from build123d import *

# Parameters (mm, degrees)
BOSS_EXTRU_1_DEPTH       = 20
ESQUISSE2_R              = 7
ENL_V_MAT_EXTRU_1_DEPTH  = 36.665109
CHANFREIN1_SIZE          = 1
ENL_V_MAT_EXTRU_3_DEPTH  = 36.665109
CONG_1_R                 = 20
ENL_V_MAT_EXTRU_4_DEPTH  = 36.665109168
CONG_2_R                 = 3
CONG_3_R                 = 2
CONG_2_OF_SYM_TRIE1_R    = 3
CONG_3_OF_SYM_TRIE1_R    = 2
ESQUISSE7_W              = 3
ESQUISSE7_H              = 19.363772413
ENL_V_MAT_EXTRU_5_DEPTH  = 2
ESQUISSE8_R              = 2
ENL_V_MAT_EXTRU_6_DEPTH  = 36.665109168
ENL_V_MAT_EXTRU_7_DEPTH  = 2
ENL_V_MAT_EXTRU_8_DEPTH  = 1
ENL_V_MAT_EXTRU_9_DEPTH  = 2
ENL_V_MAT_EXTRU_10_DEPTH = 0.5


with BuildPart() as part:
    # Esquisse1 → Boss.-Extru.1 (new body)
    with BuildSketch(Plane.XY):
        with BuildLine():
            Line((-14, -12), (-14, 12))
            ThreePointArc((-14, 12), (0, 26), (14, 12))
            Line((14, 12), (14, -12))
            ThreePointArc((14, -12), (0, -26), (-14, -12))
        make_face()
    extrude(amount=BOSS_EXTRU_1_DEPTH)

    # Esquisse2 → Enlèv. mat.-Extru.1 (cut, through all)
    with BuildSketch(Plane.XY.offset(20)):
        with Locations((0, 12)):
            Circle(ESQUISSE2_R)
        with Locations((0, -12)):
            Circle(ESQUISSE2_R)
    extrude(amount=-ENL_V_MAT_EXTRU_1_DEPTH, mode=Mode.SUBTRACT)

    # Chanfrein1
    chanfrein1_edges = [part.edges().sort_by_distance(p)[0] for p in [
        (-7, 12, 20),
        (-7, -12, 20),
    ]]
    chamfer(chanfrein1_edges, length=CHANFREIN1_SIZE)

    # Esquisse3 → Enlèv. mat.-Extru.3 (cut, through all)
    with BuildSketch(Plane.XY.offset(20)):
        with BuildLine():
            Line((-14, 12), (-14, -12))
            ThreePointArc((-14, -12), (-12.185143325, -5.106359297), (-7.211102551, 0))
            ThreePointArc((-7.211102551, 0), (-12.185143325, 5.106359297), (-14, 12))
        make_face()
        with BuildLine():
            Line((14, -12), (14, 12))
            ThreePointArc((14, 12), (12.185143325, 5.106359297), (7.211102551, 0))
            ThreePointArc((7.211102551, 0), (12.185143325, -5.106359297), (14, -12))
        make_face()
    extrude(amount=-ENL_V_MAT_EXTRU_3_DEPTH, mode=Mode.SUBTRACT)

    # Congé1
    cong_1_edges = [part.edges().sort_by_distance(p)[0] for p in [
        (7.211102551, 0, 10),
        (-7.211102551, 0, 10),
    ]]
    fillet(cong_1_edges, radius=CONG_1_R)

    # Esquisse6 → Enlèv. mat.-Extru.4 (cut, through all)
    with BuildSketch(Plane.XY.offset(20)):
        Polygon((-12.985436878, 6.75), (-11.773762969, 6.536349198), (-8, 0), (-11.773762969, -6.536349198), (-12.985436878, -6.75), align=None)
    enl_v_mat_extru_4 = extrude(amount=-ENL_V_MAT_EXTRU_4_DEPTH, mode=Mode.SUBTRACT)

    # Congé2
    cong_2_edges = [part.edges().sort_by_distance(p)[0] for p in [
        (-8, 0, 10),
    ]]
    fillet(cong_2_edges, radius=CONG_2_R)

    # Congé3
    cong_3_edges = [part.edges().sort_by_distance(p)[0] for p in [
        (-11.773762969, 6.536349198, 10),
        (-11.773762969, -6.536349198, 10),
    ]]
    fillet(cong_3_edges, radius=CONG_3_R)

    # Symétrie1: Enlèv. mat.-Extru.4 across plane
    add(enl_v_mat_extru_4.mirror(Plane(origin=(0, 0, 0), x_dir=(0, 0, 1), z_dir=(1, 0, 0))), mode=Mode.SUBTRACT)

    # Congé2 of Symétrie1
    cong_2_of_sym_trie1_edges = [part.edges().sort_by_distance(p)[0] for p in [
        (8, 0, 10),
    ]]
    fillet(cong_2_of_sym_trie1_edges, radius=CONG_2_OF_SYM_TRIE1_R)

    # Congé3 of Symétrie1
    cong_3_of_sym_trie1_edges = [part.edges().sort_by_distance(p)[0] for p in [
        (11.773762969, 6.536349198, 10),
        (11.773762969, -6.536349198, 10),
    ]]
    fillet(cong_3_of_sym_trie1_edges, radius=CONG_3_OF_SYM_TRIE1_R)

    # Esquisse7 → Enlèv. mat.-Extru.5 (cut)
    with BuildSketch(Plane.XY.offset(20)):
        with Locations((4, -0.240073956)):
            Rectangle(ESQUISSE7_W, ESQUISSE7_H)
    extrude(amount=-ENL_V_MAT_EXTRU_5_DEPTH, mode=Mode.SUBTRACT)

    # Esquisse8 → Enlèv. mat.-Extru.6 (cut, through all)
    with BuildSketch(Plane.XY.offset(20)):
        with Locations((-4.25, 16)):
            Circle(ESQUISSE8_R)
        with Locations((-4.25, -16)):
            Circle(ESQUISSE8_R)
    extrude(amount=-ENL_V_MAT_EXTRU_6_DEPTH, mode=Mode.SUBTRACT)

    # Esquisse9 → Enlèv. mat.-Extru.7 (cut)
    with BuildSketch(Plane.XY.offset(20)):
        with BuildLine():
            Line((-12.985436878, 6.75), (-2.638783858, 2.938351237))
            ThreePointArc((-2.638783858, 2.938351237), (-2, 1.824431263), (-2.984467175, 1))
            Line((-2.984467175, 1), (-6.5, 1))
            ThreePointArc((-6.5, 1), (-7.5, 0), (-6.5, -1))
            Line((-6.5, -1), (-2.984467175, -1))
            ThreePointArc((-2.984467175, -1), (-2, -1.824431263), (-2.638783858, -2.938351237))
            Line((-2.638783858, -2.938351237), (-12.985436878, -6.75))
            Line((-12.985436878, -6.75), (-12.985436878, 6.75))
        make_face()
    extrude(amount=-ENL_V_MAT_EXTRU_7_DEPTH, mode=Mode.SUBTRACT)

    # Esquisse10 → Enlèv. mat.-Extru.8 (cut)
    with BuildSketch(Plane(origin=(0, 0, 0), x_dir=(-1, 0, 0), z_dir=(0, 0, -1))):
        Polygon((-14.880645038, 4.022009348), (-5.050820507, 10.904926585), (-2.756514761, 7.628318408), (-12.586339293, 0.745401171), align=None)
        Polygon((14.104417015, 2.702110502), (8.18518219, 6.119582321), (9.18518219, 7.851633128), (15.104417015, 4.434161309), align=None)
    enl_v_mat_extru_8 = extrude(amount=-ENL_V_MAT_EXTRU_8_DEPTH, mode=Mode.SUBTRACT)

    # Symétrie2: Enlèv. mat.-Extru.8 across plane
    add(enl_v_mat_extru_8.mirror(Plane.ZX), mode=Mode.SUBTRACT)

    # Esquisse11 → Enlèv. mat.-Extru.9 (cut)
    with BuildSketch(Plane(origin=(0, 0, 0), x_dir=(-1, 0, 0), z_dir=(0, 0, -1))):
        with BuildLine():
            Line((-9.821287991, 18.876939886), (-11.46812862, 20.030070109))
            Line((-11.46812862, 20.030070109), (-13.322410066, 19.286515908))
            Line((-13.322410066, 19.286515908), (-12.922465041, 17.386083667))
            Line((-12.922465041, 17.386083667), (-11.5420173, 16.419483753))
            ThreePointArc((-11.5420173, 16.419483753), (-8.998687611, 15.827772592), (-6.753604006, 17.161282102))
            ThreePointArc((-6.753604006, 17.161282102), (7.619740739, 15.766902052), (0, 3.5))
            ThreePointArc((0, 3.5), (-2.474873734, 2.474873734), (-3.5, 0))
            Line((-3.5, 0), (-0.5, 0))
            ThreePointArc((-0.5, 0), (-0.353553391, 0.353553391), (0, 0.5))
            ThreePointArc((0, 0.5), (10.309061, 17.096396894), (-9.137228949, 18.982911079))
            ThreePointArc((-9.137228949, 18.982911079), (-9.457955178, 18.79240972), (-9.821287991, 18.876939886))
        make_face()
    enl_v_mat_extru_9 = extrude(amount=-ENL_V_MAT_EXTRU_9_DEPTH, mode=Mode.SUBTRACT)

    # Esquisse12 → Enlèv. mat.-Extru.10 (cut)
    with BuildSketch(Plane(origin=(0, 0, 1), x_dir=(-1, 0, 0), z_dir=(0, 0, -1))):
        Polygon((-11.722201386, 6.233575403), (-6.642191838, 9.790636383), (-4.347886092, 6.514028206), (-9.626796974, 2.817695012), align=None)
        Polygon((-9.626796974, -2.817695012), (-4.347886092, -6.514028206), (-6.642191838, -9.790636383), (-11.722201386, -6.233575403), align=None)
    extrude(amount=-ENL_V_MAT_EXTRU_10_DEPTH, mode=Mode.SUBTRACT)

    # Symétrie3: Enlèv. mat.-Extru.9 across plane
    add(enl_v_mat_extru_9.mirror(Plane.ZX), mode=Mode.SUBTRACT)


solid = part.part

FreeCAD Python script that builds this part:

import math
import FreeCAD as App
import Part
import Sketcher
from FreeCAD import Vector
Q = App.Units.Quantity


def edges_at(feature, points):
    """Names of the edges that pass closest to the given points."""
    edges = feature.Shape.Edges
    near = lambda p: min(range(len(edges)), key=lambda i: edges[i].distToShape(Part.Vertex(*p))[0])
    return sorted({f"Edge{near(p) + 1}" for p in points})

doc = App.newDocument("Part")
body = doc.addObject("PartDesign::Body", "Body")

sketch1 = body.newObject("Sketcher::SketchObject", "Sketch")
sketch1.AttachmentSupport = (doc.getObject("XY_Plane"), [""])
sketch1.MapMode = "FlatFace"
sketch1.addGeometry(Part.LineSegment(Vector(-14, 12, 0), Vector(-14, -12, 0)), False)
sketch1.addGeometry(Part.ArcOfCircle(Part.Circle(Vector(0, -12, 0), Vector(0, 0, 1), 14), math.radians(180), math.radians(360)), False)
sketch1.addGeometry(Part.LineSegment(Vector(14, -12, 0), Vector(14, 12, 0)), False)
sketch1.addGeometry(Part.ArcOfCircle(Part.Circle(Vector(0, 12, 0), Vector(0, 0, 1), 14), math.radians(0), math.radians(180)), False)
sketch1.addConstraint(Sketcher.Constraint("Tangent", 0, 2, 1, 1))
sketch1.addConstraint(Sketcher.Constraint("Tangent", 1, 2, 2, 1))
sketch1.addConstraint(Sketcher.Constraint("Tangent", 2, 2, 3, 1))
sketch1.addConstraint(Sketcher.Constraint("Tangent", 3, 2, 0, 1))
sketch1.addConstraint(Sketcher.Constraint("Vertical", 0))
sketch1.addConstraint(Sketcher.Constraint("Vertical", 2))
sketch1.addConstraint(Sketcher.Constraint("Symmetric", 1, 3, 3, 3, -1, 1))
sketch1.addConstraint(Sketcher.Constraint("Radius", 1, 14.0))
sketch1.addConstraint(Sketcher.Constraint("DistanceY", 0, 2, 0, 1, 24.0))
pad1 = body.newObject("PartDesign::Pad", "Pad")
pad1.Profile = sketch1
pad1.Length = 20

sketch2 = body.newObject("Sketcher::SketchObject", "Sketch001")
sketch2.AttachmentSupport = (doc.getObject("XY_Plane"), [""])
sketch2.MapMode = "FlatFace"
sketch2.AttachmentOffset = App.Placement(Vector(0, 0, 20), App.Rotation())
sketch2.addGeometry(Part.Circle(Vector(0, 12, 0), Vector(0, 0, 1), 7), False)
sketch2.addGeometry(Part.Circle(Vector(0, -12, 0), Vector(0, 0, 1), 7), False)
sketch2.addConstraint(Sketcher.Constraint("Equal", 0, 1))
sketch2.addConstraint(Sketcher.Constraint("Symmetric", 0, 3, 1, 3, -1, 1))
sketch2.addConstraint(Sketcher.Constraint("PointOnObject", 0, 3, -2))
sketch2.addConstraint(Sketcher.Constraint("Diameter", 0, 14.0))
sketch2.addConstraint(Sketcher.Constraint("DistanceY", -1, 1, 0, 3, 12.0))
pocket1 = body.newObject("PartDesign::Pocket", "Pocket")
pocket1.Profile = sketch2
pocket1.Type = "ThroughAll"
doc.recompute()

chamfer = body.newObject("PartDesign::Chamfer", "Chamfer")
chamfer.Base = (pocket1, edges_at(pocket1, [(-7, 12, 20), (-7, -12, 20)]))
chamfer.Size = 1

sketch3 = body.newObject("Sketcher::SketchObject", "Sketch002")
sketch3.AttachmentSupport = (doc.getObject("XY_Plane"), [""])
sketch3.MapMode = "FlatFace"
sketch3.AttachmentOffset = App.Placement(Vector(0, 0, 20), App.Rotation())
sketch3.addGeometry(Part.LineSegment(Vector(-14, 12, 0), Vector(-14, -12, 0)), False)
sketch3.addGeometry(Part.ArcOfCircle(Part.Circle(Vector(0, -12, 0), Vector(0, 0, 1), 14), math.radians(121), math.radians(180)), False)
sketch3.addGeometry(Part.ArcOfCircle(Part.Circle(Vector(0, 12, 0), Vector(0, 0, 1), 14), math.radians(-180), math.radians(-121)), False)
sketch3.addGeometry(Part.LineSegment(Vector(14, -12, 0), Vector(14, 12, 0)), False)
sketch3.addGeometry(Part.ArcOfCircle(Part.Circle(Vector(0, 12, 0), Vector(0, 0, 1), 14), math.radians(-59), math.radians(0)), False)
sketch3.addGeometry(Part.ArcOfCircle(Part.Circle(Vector(0, -12, 0), Vector(0, 0, 1), 14), math.radians(0), math.radians(59)), False)
sketch3.addConstraint(Sketcher.Constraint("Tangent", 0, 2, 1, 2))
sketch3.addConstraint(Sketcher.Constraint("Coincident", 1, 1, 2, 2))
sketch3.addConstraint(Sketcher.Constraint("Tangent", 2, 1, 0, 1))
sketch3.addConstraint(Sketcher.Constraint("Tangent", 3, 2, 4, 2))
sketch3.addConstraint(Sketcher.Constraint("Coincident", 4, 1, 5, 2))
sketch3.addConstraint(Sketcher.Constraint("Tangent", 5, 1, 3, 1))
sketch3.addConstraint(Sketcher.Constraint("Vertical", 0))
sketch3.addConstraint(Sketcher.Constraint("Vertical", 3))
sketch3.addConstraint(Sketcher.Constraint("Coincident", 4, 3, 2, 3))
sketch3.addConstraint(Sketcher.Constraint("Coincident", 5, 3, 1, 3))
sketch3.addConstraint(Sketcher.Constraint("Equal", 1, 2))
sketch3.addConstraint(Sketcher.Constraint("Equal", 2, 4))
sketch3.addConstraint(Sketcher.Constraint("Symmetric", 1, 3, 2, 3, -1, 1))
sketch3.addConstraint(Sketcher.Constraint("Radius", 1, 14.0))
sketch3.addConstraint(Sketcher.Constraint("DistanceY", 0, 2, 0, 1, 24.0))
pocket2 = body.newObject("PartDesign::Pocket", "Pocket001")
pocket2.Profile = sketch3
pocket2.Type = "ThroughAll"
doc.recompute()

fillet = body.newObject("PartDesign::Fillet", "Fillet")
fillet.Base = (pocket2, edges_at(pocket2, [(7.211, 0, 10), (-7.211, 0, 10)]))
fillet.Radius = 20

sketch4 = body.newObject("Sketcher::SketchObject", "Sketch003")
sketch4.AttachmentSupport = (doc.getObject("XY_Plane"), [""])
sketch4.MapMode = "FlatFace"
sketch4.AttachmentOffset = App.Placement(Vector(0, 0, 20), App.Rotation())
sketch4.addGeometry(Part.LineSegment(Vector(-11.8, 6.5, 0), Vector(-13, 6.8, 0)), False)
sketch4.addGeometry(Part.LineSegment(Vector(-13, 6.8, 0), Vector(-13, -6.8, 0)), False)
sketch4.addGeometry(Part.LineSegment(Vector(-13, -6.8, 0), Vector(-11.8, -6.5, 0)), False)
sketch4.addGeometry(Part.LineSegment(Vector(-11.8, -6.5, 0), Vector(-8, 0, 0)), False)
sketch4.addGeometry(Part.LineSegment(Vector(-8, 0, 0), Vector(-11.8, 6.5, 0)), False)
sketch4.addConstraint(Sketcher.Constraint("Coincident", 0, 2, 1, 1))
sketch4.addConstraint(Sketcher.Constraint("Coincident", 1, 2, 2, 1))
sketch4.addConstraint(Sketcher.Constraint("Coincident", 2, 2, 3, 1))
sketch4.addConstraint(Sketcher.Constraint("Coincident", 3, 2, 4, 1))
sketch4.addConstraint(Sketcher.Constraint("Coincident", 4, 2, 0, 1))
sketch4.addConstraint(Sketcher.Constraint("Vertical", 1))
sketch4.addConstraint(Sketcher.Constraint("Symmetric", 2, 2, 4, 2, -1))
sketch4.addConstraint(Sketcher.Constraint("PointOnObject", 3, 2, -1))
sketch4.addConstraint(Sketcher.Constraint("Equal", 0, 2))
sketch4.addConstraint(Sketcher.Constraint("Angle", 0, Q("170 deg")))
sketch4.addConstraint(Sketcher.Constraint("Angle", 3, Q("60 deg")))
sketch4.addConstraint(Sketcher.Constraint("DistanceY", 1, 2, 1, 1, 13.5))
sketch4.addConstraint(Sketcher.Constraint("DistanceX", 3, 2, -1, 1, 8.0))
sketch4.addConstraint(Sketcher.Constraint("DistanceY", 2, 2, 4, 2, 13.072698))
pocket3 = body.newObject("PartDesign::Pocket", "Pocket002")
pocket3.Profile = sketch4
pocket3.Type = "ThroughAll"
doc.recompute()

fillet2 = body.newObject("PartDesign::Fillet", "Fillet001")
fillet2.Base = (pocket3, edges_at(pocket3, [(-8, 0, 10)]))
fillet2.Radius = 3
doc.recompute()

fillet3 = body.newObject("PartDesign::Fillet", "Fillet002")
fillet3.Base = (fillet2, edges_at(fillet2, [(-11.774, 6.536, 10), (-11.774, -6.536, 10)]))
fillet3.Radius = 2
doc.recompute()

mirrored = body.newObject("PartDesign::Mirrored", "Mirrored")
mirrored.Originals = [pocket3]
mirrored.MirrorPlane = (doc.getObject("YZ_Plane"), [""])
body.Tip = mirrored
doc.recompute()

fillet4 = body.newObject("PartDesign::Fillet", "Fillet003")
fillet4.Base = (mirrored, edges_at(mirrored, [(8, 0, 10)]))
fillet4.Radius = 3
doc.recompute()

fillet5 = body.newObject("PartDesign::Fillet", "Fillet004")
fillet5.Base = (fillet4, edges_at(fillet4, [(11.774, 6.536, 10), (11.774, -6.536, 10)]))
fillet5.Radius = 2

sketch5 = body.newObject("Sketcher::SketchObject", "Sketch004")
sketch5.AttachmentSupport = (doc.getObject("XY_Plane"), [""])
sketch5.MapMode = "FlatFace"
sketch5.AttachmentOffset = App.Placement(Vector(0, 0, 20), App.Rotation())
sketch5.addGeometry(Part.LineSegment(Vector(2.5, 9.4, 0), Vector(2.5, -9.9, 0)), False)
sketch5.addGeometry(Part.LineSegment(Vector(2.5, -9.9, 0), Vector(5.5, -9.9, 0)), False)
sketch5.addGeometry(Part.LineSegment(Vector(5.5, -9.9, 0), Vector(5.5, 9.4, 0)), False)
sketch5.addGeometry(Part.LineSegment(Vector(5.5, 9.4, 0), Vector(2.5, 9.4, 0)), False)
sketch5.addConstraint(Sketcher.Constraint("Coincident", 0, 2, 1, 1))
sketch5.addConstraint(Sketcher.Constraint("Coincident", 1, 2, 2, 1))
sketch5.addConstraint(Sketcher.Constraint("Coincident", 2, 2, 3, 1))
sketch5.addConstraint(Sketcher.Constraint("Coincident", 3, 2, 0, 1))
sketch5.addConstraint(Sketcher.Constraint("Vertical", 0))
sketch5.addConstraint(Sketcher.Constraint("Horizontal", 1))
sketch5.addConstraint(Sketcher.Constraint("Vertical", 2))
sketch5.addConstraint(Sketcher.Constraint("Horizontal", 3))
sketch5.addConstraint(Sketcher.Constraint("DistanceX", 1, 1, 1, 2, 3.0))
sketch5.addConstraint(Sketcher.Constraint("DistanceX", -1, 1, 0, 2, 2.5))
sketch5.addConstraint(Sketcher.Constraint("DistanceY", 0, 2, 0, 1, 19.363772))
sketch5.addConstraint(Sketcher.Constraint("DistanceY", 0, 2, -1, 1, 9.92196))
pocket4 = body.newObject("PartDesign::Pocket", "Pocket003")
pocket4.Profile = sketch5
pocket4.Length = 2

sketch6 = body.newObject("Sketcher::SketchObject", "Sketch005")
sketch6.AttachmentSupport = (doc.getObject("XY_Plane"), [""])
sketch6.MapMode = "FlatFace"
sketch6.AttachmentOffset = App.Placement(Vector(0, 0, 20), App.Rotation())
sketch6.addGeometry(Part.Circle(Vector(-4.2, 16, 0), Vector(0, 0, 1), 2), False)
sketch6.addGeometry(Part.Circle(Vector(-4.2, -16, 0), Vector(0, 0, 1), 2), False)
sketch6.addConstraint(Sketcher.Constraint("Equal", 0, 1))
sketch6.addConstraint(Sketcher.Constraint("Symmetric", 0, 3, 1, 3, -1))
sketch6.addConstraint(Sketcher.Constraint("Diameter", 0, 4.0))
sketch6.addConstraint(Sketcher.Constraint("DistanceY", -1, 1, 0, 3, 16.0))
sketch6.addConstraint(Sketcher.Constraint("DistanceX", 0, 3, -1, 1, 4.25))
pocket5 = body.newObject("PartDesign::Pocket", "Pocket004")
pocket5.Profile = sketch6
pocket5.Type = "ThroughAll"

sketch7 = body.newObject("Sketcher::SketchObject", "Sketch006")
sketch7.AttachmentSupport = (doc.getObject("XY_Plane"), [""])
sketch7.MapMode = "FlatFace"
sketch7.AttachmentOffset = App.Placement(Vector(0, 0, 20), App.Rotation())
sketch7.addGeometry(Part.LineSegment(Vector(-2.6, 2.9, 0), Vector(-13, 6.8, 0)), False)
sketch7.addGeometry(Part.LineSegment(Vector(-13, 6.8, 0), Vector(-13, -6.8, 0)), False)
sketch7.addGeometry(Part.LineSegment(Vector(-13, -6.8, 0), Vector(-2.6, -2.9, 0)), False)
sketch7.addGeometry(Part.ArcOfCircle(Part.Circle(Vector(-3, -2, 0), Vector(0, 0, 1), 1), math.radians(-70), math.radians(90)), False)
sketch7.addGeometry(Part.LineSegment(Vector(-3, -1, 0), Vector(-6.5, -1, 0)), False)
sketch7.addGeometry(Part.ArcOfCircle(Part.Circle(Vector(-6.5, 0, 0), Vector(0, 0, 1), 1), math.radians(90), math.radians(270)), False)
sketch7.addGeometry(Part.LineSegment(Vector(-6.5, 1, 0), Vector(-3, 1, 0)), False)
sketch7.addGeometry(Part.ArcOfCircle(Part.Circle(Vector(-3, 2, 0), Vector(0, 0, 1), 1), math.radians(-90), math.radians(70)), False)
sketch7.addConstraint(Sketcher.Constraint("Coincident", 0, 2, 1, 1))
sketch7.addConstraint(Sketcher.Constraint("Coincident", 1, 2, 2, 1))
sketch7.addConstraint(Sketcher.Constraint("Tangent", 2, 2, 3, 1))
sketch7.addConstraint(Sketcher.Constraint("Tangent", 3, 2, 4, 1))
sketch7.addConstraint(Sketcher.Constraint("Tangent", 4, 2, 5, 2))
sketch7.addConstraint(Sketcher.Constraint("Tangent", 5, 1, 6, 1))
sketch7.addConstraint(Sketcher.Constraint("Tangent", 6, 2, 7, 1))
sketch7.addConstraint(Sketcher.Constraint("Tangent", 7, 2, 0, 1))
sketch7.addConstraint(Sketcher.Constraint("Vertical", 1))
sketch7.addConstraint(Sketcher.Constraint("Horizontal", 4))
sketch7.addConstraint(Sketcher.Constraint("Horizontal", 6))
sketch7.addConstraint(Sketcher.Constraint("Equal", 3, 5))
sketch7.addConstraint(Sketcher.Constraint("Equal", 5, 7))
sketch7.addConstraint(Sketcher.Constraint("Symmetric", 3, 3, 7, 3, -1))
sketch7.addConstraint(Sketcher.Constraint("Vertical", 2, 2, 7, 2))
sketch7.addConstraint(Sketcher.Constraint("Radius", 3, 1.0))
sketch7.addConstraint(Sketcher.Constraint("DistanceY", 1, 2, 1, 1, 13.5))
sketch7.addConstraint(Sketcher.Constraint("DistanceX", 5, 3, -1, 1, 6.5))
sketch7.addConstraint(Sketcher.Constraint("Distance", 0, 11.026418))
sketch7.addConstraint(Sketcher.Constraint("DistanceX", 4, 2, 4, 1, 3.515533))
pocket6 = body.newObject("PartDesign::Pocket", "Pocket005")
pocket6.Profile = sketch7
pocket6.Length = 2

sketch8 = body.newObject("Sketcher::SketchObject", "Sketch007")
sketch8.AttachmentSupport = (doc.getObject("XY_Plane"), [""])
sketch8.MapMode = "FlatFace"
sketch8.addGeometry(Part.LineSegment(Vector(5.1, 10.9, 0), Vector(14.9, 4, 0)), False)
sketch8.addGeometry(Part.LineSegment(Vector(14.9, 4, 0), Vector(12.6, 0.7, 0)), False)
sketch8.addGeometry(Part.LineSegment(Vector(12.6, 0.7, 0), Vector(2.8, 7.6, 0)), False)
sketch8.addGeometry(Part.LineSegment(Vector(2.8, 7.6, 0), Vector(5.1, 10.9, 0)), False)
sketch8.addGeometry(Part.LineSegment(Vector(-8.2, 6.1, 0), Vector(-14.1, 2.7, 0)), False)
sketch8.addGeometry(Part.LineSegment(Vector(-14.1, 2.7, 0), Vector(-15.1, 4.4, 0)), False)
sketch8.addGeometry(Part.LineSegment(Vector(-15.1, 4.4, 0), Vector(-9.2, 7.9, 0)), False)
sketch8.addGeometry(Part.LineSegment(Vector(-9.2, 7.9, 0), Vector(-8.2, 6.1, 0)), False)
sketch8.addConstraint(Sketcher.Constraint("Coincident", 0, 2, 1, 1))
sketch8.addConstraint(Sketcher.Constraint("Coincident", 1, 2, 2, 1))
sketch8.addConstraint(Sketcher.Constraint("Coincident", 2, 2, 3, 1))
sketch8.addConstraint(Sketcher.Constraint("Coincident", 3, 2, 0, 1))
sketch8.addConstraint(Sketcher.Constraint("Coincident", 4, 2, 5, 1))
sketch8.addConstraint(Sketcher.Constraint("Coincident", 5, 2, 6, 1))
sketch8.addConstraint(Sketcher.Constraint("Coincident", 6, 2, 7, 1))
sketch8.addConstraint(Sketcher.Constraint("Coincident", 7, 2, 4, 1))
sketch8.addConstraint(Sketcher.Constraint("Perpendicular", 0, 1))
sketch8.addConstraint(Sketcher.Constraint("Perpendicular", 1, 2))
sketch8.addConstraint(Sketcher.Constraint("Perpendicular", 2, 3))
sketch8.addConstraint(Sketcher.Constraint("Perpendicular", 4, 5))
sketch8.addConstraint(Sketcher.Constraint("Perpendicular", 5, 6))
sketch8.addConstraint(Sketcher.Constraint("Perpendicular", 6, 7))
sketch8.addConstraint(Sketcher.Constraint("Angle", 0, Q("-35 deg")))
sketch8.addConstraint(Sketcher.Constraint("Angle", 4, Q("-150 deg")))
sketch8.addConstraint(Sketcher.Constraint("Distance", 0, 12.0))
sketch8.addConstraint(Sketcher.Constraint("Distance", 1, 4.0))
sketch8.addConstraint(Sketcher.Constraint("Distance", 5, 2.0))
sketch8.addConstraint(Sketcher.Constraint("DistanceY", -1, 1, 1, 2, 0.745401))
sketch8.addConstraint(Sketcher.Constraint("DistanceY", 4, 2, 0, 2, 1.319899))
sketch8.addConstraint(Sketcher.Constraint("DistanceX", -1, 1, 1, 2, 12.586339))
sketch8.addConstraint(Sketcher.Constraint("DistanceX", 4, 2, 2, 2, 16.860932))
sketch8.addConstraint(Sketcher.Constraint("DistanceY", 5, 2, 6, 2, 3.417472))
pocket7 = body.newObject("PartDesign::Pocket", "Pocket006")
pocket7.Profile = sketch8
pocket7.Length = 1
pocket7.Reversed = True
doc.recompute()

mirrored2 = body.newObject("PartDesign::Mirrored", "Mirrored001")
mirrored2.Originals = [pocket7]
mirrored2.MirrorPlane = (doc.getObject("XZ_Plane"), [""])
body.Tip = mirrored2

sketch9 = body.newObject("Sketcher::SketchObject", "Sketch008")
sketch9.AttachmentSupport = (doc.getObject("XY_Plane"), [""])
sketch9.MapMode = "FlatFace"
sketch9.addGeometry(Part.LineSegment(Vector(9.82, 18.88, 0), Vector(11.47, 20.03, 0)), False)
sketch9.addGeometry(Part.LineSegment(Vector(11.47, 20.03, 0), Vector(13.32, 19.29, 0)), False)
sketch9.addGeometry(Part.LineSegment(Vector(13.32, 19.29, 0), Vector(12.92, 17.39, 0)), False)
sketch9.addGeometry(Part.LineSegment(Vector(12.92, 17.39, 0), Vector(11.54, 16.42, 0)), False)
sketch9.addGeometry(Part.ArcOfCircle(Part.Circle(Vector(9.53, 19.29, 0), Vector(0, 0, 1), 3.5), math.radians(-143), math.radians(-55)), False)
sketch9.addGeometry(Part.ArcOfCircle(Part.Circle(Vector(0, 12, 0), Vector(0, 0, 1), 8.5), math.radians(37), math.radians(270)), False)
sketch9.addGeometry(Part.ArcOfCircle(Part.Circle(Vector(0, 0, 0), Vector(0, 0, 1), 3.5), math.radians(0), math.radians(90)), False)
sketch9.addGeometry(Part.LineSegment(Vector(3.5, 0, 0), Vector(0.5, 0, 0)), False)
sketch9.addGeometry(Part.ArcOfCircle(Part.Circle(Vector(0, 0, 0), Vector(0, 0, 1), 0.5), math.radians(0), math.radians(90)), False)
sketch9.addGeometry(Part.ArcOfCircle(Part.Circle(Vector(0, 12, 0), Vector(0, 0, 1), 11.5), math.radians(37), math.radians(270)), False)
sketch9.addGeometry(Part.ArcOfCircle(Part.Circle(Vector(9.53, 19.29, 0), Vector(0, 0, 1), 0.5), math.radians(-143), math.radians(-55)), False)
sketch9.addConstraint(Sketcher.Constraint("Coincident", 0, 2, 1, 1))
sketch9.addConstraint(Sketcher.Constraint("Coincident", 1, 2, 2, 1))
sketch9.addConstraint(Sketcher.Constraint("Coincident", 2, 2, 3, 1))
sketch9.addConstraint(Sketcher.Constraint("Tangent", 3, 2, 4, 2))
sketch9.addConstraint(Sketcher.Constraint("Tangent", 4, 1, 5, 1))
sketch9.addConstraint(Sketcher.Constraint("Tangent", 5, 2, 6, 2))
sketch9.addConstraint(Sketcher.Constraint("Coincident", 6, 1, 7, 1))
sketch9.addConstraint(Sketcher.Constraint("Coincident", 7, 2, 8, 1))
sketch9.addConstraint(Sketcher.Constraint("Tangent", 8, 2, 9, 2))
sketch9.addConstraint(Sketcher.Constraint("Tangent", 9, 1, 10, 1))
sketch9.addConstraint(Sketcher.Constraint("Tangent", 10, 2, 0, 1))
sketch9.addConstraint(Sketcher.Constraint("Horizontal", 7))
sketch9.addConstraint(Sketcher.Constraint("Coincident", 6, 3, -1, 1))
sketch9.addConstraint(Sketcher.Constraint("Coincident", 8, 3, -1, 1))
sketch9.addConstraint(Sketcher.Constraint("Coincident", 9, 3, 5, 3))
sketch9.addConstraint(Sketcher.Constraint("Coincident", 10, 3, 4, 3))
sketch9.addConstraint(Sketcher.Constraint("Equal", 4, 6))
sketch9.addConstraint(Sketcher.Constraint("PointOnObject", 5, 3, -2))
sketch9.addConstraint(Sketcher.Constraint("PointOnObject", 6, 1, -1))
sketch9.addConstraint(Sketcher.Constraint("Parallel", 0, 3))
sketch9.addConstraint(Sketcher.Constraint("Horizontal", 10, 3, 1, 2))
sketch9.addConstraint(Sketcher.Constraint("Radius", 4, 3.5))
sketch9.addConstraint(Sketcher.Constraint("Radius", 5, 8.5))
sketch9.addConstraint(Sketcher.Constraint("Radius", 8, 0.5))
sketch9.addConstraint(Sketcher.Constraint("Angle", 0, Q("35 deg")))
sketch9.addConstraint(Sketcher.Constraint("DistanceX", -1, 1, 4, 3, 9.5345))
sketch9.addConstraint(Sketcher.Constraint("DistanceY", 3, 2, 2, 2, 0.9666))
sketch9.addConstraint(Sketcher.Constraint("DistanceX", 9, 1, 0, 2, 2.3309))
sketch9.addConstraint(Sketcher.Constraint("Distance", 2, 1.94206))
pocket8 = body.newObject("PartDesign::Pocket", "Pocket007")
pocket8.Profile = sketch9
pocket8.Length = 2
pocket8.Reversed = True

sketch10 = body.newObject("Sketcher::SketchObject", "Sketch009")
sketch10.AttachmentSupport = (doc.getObject("XY_Plane"), [""])
sketch10.MapMode = "FlatFace"
sketch10.AttachmentOffset = App.Placement(Vector(0, 0, 1), App.Rotation())
sketch10.addGeometry(Part.LineSegment(Vector(6.6, 9.8, 0), Vector(11.7, 6.2, 0)), False)
sketch10.addGeometry(Part.LineSegment(Vector(11.7, 6.2, 0), Vector(9.6, 2.8, 0)), False)
sketch10.addGeometry(Part.LineSegment(Vector(9.6, 2.8, 0), Vector(4.3, 6.5, 0)), False)
sketch10.addGeometry(Part.LineSegment(Vector(4.3, 6.5, 0), Vector(6.6, 9.8, 0)), False)
sketch10.addGeometry(Part.LineSegment(Vector(4.3, -6.5, 0), Vector(9.6, -2.8, 0)), False)
sketch10.addGeometry(Part.LineSegment(Vector(9.6, -2.8, 0), Vector(11.7, -6.2, 0)), False)
sketch10.addGeometry(Part.LineSegment(Vector(11.7, -6.2, 0), Vector(6.6, -9.8, 0)), False)
sketch10.addGeometry(Part.LineSegment(Vector(6.6, -9.8, 0), Vector(4.3, -6.5, 0)), False)
sketch10.addConstraint(Sketcher.Constraint("Coincident", 0, 2, 1, 1))
sketch10.addConstraint(Sketcher.Constraint("Coincident", 1, 2, 2, 1))
sketch10.addConstraint(Sketcher.Constraint("Coincident", 2, 2, 3, 1))
sketch10.addConstraint(Sketcher.Constraint("Coincident", 3, 2, 0, 1))
sketch10.addConstraint(Sketcher.Constraint("Coincident", 4, 2, 5, 1))
sketch10.addConstraint(Sketcher.Constraint("Coincident", 5, 2, 6, 1))
sketch10.addConstraint(Sketcher.Constraint("Coincident", 6, 2, 7, 1))
sketch10.addConstraint(Sketcher.Constraint("Coincident", 7, 2, 4, 1))
sketch10.addConstraint(Sketcher.Constraint("Symmetric", 1, 2, 4, 2, -1))
sketch10.addConstraint(Sketcher.Constraint("Symmetric", 0, 2, 5, 2, -1))
sketch10.addConstraint(Sketcher.Constraint("Symmetric", 3, 2, 6, 2, -1))
sketch10.addConstraint(Sketcher.Constraint("Symmetric", 2, 2, 7, 2, -1))
sketch10.addConstraint(Sketcher.Constraint("Parallel", 0, 2))
sketch10.addConstraint(Sketcher.Constraint("Perpendicular", 2, 3))
sketch10.addConstraint(Sketcher.Constraint("Angle", 0, Q("-35 deg")))
sketch10.addConstraint(Sketcher.Constraint("Distance", 3, 4.0))
sketch10.addConstraint(Sketcher.Constraint("DistanceX", -1, 1, 0, 2, 11.722201))
sketch10.addConstraint(Sketcher.Constraint("Distance", 2, 6.44436))
sketch10.addConstraint(Sketcher.Constraint("DistanceY", -1, 1, 2, 2, 6.514028))
sketch10.addConstraint(Sketcher.Constraint("DistanceX", -1, 1, 3, 2, 6.642192))
pocket9 = body.newObject("PartDesign::Pocket", "Pocket008")
pocket9.Profile = sketch10
pocket9.Length = 0.5
pocket9.Reversed = True
doc.recompute()

mirrored3 = body.newObject("PartDesign::Mirrored", "Mirrored002")
mirrored3.Originals = [pocket8]
mirrored3.MirrorPlane = (doc.getObject("XZ_Plane"), [""])
body.Tip = mirrored3

doc.recompute()
